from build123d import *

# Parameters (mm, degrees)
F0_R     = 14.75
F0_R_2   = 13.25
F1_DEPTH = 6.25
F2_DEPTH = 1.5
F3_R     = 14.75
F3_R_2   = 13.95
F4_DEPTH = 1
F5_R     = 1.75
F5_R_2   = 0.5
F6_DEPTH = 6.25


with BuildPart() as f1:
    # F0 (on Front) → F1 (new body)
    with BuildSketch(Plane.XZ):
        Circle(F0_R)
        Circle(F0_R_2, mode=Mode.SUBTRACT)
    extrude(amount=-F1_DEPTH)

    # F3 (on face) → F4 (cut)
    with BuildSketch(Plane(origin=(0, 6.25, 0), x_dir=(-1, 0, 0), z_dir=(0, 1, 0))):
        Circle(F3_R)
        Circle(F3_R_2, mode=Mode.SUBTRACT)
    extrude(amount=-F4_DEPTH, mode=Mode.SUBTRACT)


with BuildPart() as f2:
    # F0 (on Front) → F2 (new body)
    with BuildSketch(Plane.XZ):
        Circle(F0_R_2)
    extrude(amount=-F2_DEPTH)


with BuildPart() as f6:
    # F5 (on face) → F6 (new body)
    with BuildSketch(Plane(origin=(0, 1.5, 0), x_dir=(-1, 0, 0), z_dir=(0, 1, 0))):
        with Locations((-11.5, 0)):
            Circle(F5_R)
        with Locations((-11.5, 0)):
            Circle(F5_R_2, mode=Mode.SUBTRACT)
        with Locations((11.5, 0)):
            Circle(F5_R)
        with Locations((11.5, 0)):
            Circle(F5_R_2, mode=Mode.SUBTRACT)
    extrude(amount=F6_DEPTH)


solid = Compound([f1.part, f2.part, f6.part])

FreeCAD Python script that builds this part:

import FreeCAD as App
import Part
import Sketcher
from FreeCAD import Vector

doc = App.newDocument("Part")
body = doc.addObject("PartDesign::Body", "Body")

sketch1 = doc.addObject("Sketcher::SketchObject", "Sketch")
body.addObject(sketch1)
sketch1.AttachmentSupport = (doc.XZ_Plane, [""])
sketch1.MapMode = "FlatFace"
sketch1.addGeometry([
    Part.Circle(Vector(0, 0, 0), Vector(0, 0, 1), 15),
    Part.Circle(Vector(0, 0, 0), Vector(0, 0, 1), 13),
], False)
sketch1.addConstraint([
    Sketcher.Constraint("Coincident", 0, 3, -1, 1),
    Sketcher.Constraint("Coincident", 1, 3, -1, 1),
    Sketcher.Constraint("Diameter", 0, 29.5),
    Sketcher.Constraint("Diameter", 1, 26.5),
])
pad1 = doc.addObject("PartDesign::Pad", "Pad")
body.addObject(pad1)
pad1.Profile = sketch1
pad1.Length = 6.25
pad1.Reversed = True

sketch2 = doc.addObject("Sketcher::SketchObject", "Sketch001")
body.addObject(sketch2)
sketch2.AttachmentSupport = (doc.XZ_Plane, [""])
sketch2.MapMode = "FlatFace"
sketch2.AttachmentOffset = App.Placement(Vector(0, 0, -6.25), App.Rotation())
sketch2.addGeometry([
    Part.Circle(Vector(0, 0, 0), Vector(0, 0, 1), 15),
    Part.Circle(Vector(0, 0, 0), Vector(0, 0, 1), 14),
], False)
sketch2.addConstraint([
    Sketcher.Constraint("Coincident", 0, 3, -1, 1),
    Sketcher.Constraint("Coincident", 1, 3, -1, 1),
    Sketcher.Constraint("Diameter", 0, 29.5),
    Sketcher.Constraint("Diameter", 1, 27.9),
])
pocket1 = doc.addObject("PartDesign::Pocket", "Pocket")
body.addObject(pocket1)
pocket1.Profile = sketch2
pocket1.Length = 1
pocket1.Reversed = True
body2 = doc.addObject("PartDesign::Body", "Body001")

sketch3 = doc.addObject("Sketcher::SketchObject", "Sketch002")
body2.addObject(sketch3)
sketch3.AttachmentSupport = (doc.getObject("XZ_Plane001"), [""])
sketch3.MapMode = "FlatFace"
sketch3.addGeometry(Part.Circle(Vector(0, 0, 0), Vector(0, 0, 1), 13), False)
sketch3.addConstraint([
    Sketcher.Constraint("Coincident", 0, 3, -1, 1),
    Sketcher.Constraint("Diameter", 0, 26.5),
])
pad2 = doc.addObject("PartDesign::Pad", "Pad001")
body2.addObject(pad2)
pad2.Profile = sketch3
pad2.Length = 1.5
pad2.Reversed = True
body3 = doc.addObject("PartDesign::Body", "Body002")
body3.AllowCompound = True

sketch4 = doc.addObject("Sketcher::SketchObject", "Sketch003")
body3.addObject(sketch4)
sketch4.AttachmentSupport = (doc.getObject("XZ_Plane002"), [""])
sketch4.MapMode = "FlatFace"
sketch4.AttachmentOffset = App.Placement(Vector(0, 0, -1.5), App.Rotation())
sketch4.addGeometry([
    Part.Circle(Vector(11.5, 0, 0), Vector(0, 0, 1), 1.8),
    Part.Circle(Vector(11.5, 0, 0), Vector(0, 0, 1), 0.5),
    Part.Circle(Vector(-11.5, 0, 0), Vector(0, 0, 1), 1.8),
    Part.Circle(Vector(-11.5, 0, 0), Vector(0, 0, 1), 0.5),
], False)
sketch4.addConstraint([
    Sketcher.Constraint("Coincident", 1, 3, 0, 3),
    Sketcher.Constraint("Coincident", 3, 3, 2, 3),
    Sketcher.Constraint("Equal", 0, 2),
    Sketcher.Constraint("Equal", 1, 3),
    Sketcher.Constraint("Symmetric", 0, 3, 2, 3, -1, 1),
    Sketcher.Constraint("PointOnObject", 0, 3, -1),
    Sketcher.Constraint("Diameter", 1, 1.0),
    Sketcher.Constraint("Diameter", 0, 3.5),
    Sketcher.Constraint("DistanceX", 2, 3, 0, 3, 23.0),
])
pad3 = doc.addObject("PartDesign::Pad", "Pad002")
body3.addObject(pad3)
pad3.Profile = sketch4
pad3.Length = 6.25
pad3.Reversed = True

doc.recompute()
